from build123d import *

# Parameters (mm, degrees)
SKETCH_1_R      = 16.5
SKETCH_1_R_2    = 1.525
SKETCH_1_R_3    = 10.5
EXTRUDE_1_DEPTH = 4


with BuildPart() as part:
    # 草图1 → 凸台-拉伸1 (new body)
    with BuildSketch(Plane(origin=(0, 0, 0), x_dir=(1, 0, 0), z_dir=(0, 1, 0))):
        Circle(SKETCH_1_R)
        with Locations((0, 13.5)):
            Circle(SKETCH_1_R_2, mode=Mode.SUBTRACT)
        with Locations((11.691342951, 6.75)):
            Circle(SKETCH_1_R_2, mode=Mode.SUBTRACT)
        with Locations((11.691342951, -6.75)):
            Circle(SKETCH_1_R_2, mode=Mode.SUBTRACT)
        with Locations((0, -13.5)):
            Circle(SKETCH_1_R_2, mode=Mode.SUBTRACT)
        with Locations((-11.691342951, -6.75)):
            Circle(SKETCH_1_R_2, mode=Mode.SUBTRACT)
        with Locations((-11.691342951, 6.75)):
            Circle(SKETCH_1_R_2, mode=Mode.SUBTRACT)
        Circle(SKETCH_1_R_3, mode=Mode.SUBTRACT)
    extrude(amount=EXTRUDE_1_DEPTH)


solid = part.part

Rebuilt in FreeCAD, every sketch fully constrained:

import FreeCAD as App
import Part
import Sketcher
from FreeCAD import Vector
Q = App.Units.Quantity

doc = App.newDocument("Part")
params = doc.addObject("Spreadsheet::Sheet", "Params")
for row, (alias, value) in enumerate([
    ("sketch1_diameter", "33 mm"),
    ("sketch1_diameter2", "21 mm"),
    ("sketch1_diameter3", "3.05 mm"),
    ("pad1_length", "4 mm"),
], start=1):
    params.set(f"A{row}", alias)
    params.set(f"B{row}", "=" + value)
    params.setAlias(f"B{row}", alias)

body = doc.addObject("PartDesign::Body", "Body")

sketch1 = body.newObject("Sketcher::SketchObject", "Sketch")
sketch1.AttachmentSupport = (doc.getObject("XZ_Plane"), [""])
sketch1.MapMode = "FlatFace"
sketch1.addGeometry(Part.Circle(Vector(0, 0, 0), Vector(0, 0, 1), 16.5), False)
sketch1.addGeometry(Part.Circle(Vector(0, 13.5, 0), Vector(0, 0, 1), 1.5), False)
sketch1.addGeometry(Part.Circle(Vector(-11.7, 6.8, 0), Vector(0, 0, 1), 1.5), False)
sketch1.addGeometry(Part.Circle(Vector(11.7, 6.8, 0), Vector(0, 0, 1), 1.5), False)
sketch1.addGeometry(Part.Circle(Vector(-11.7, -6.8, 0), Vector(0, 0, 1), 1.5), False)
sketch1.addGeometry(Part.Circle(Vector(0, -13.5, 0), Vector(0, 0, 1), 1.5), False)
sketch1.addGeometry(Part.Circle(Vector(0, 0, 0), Vector(0, 0, 1), 10.5), False)
sketch1.addGeometry(Part.Circle(Vector(11.7, -6.8, 0), Vector(0, 0, 1), 1.5), False)
sketch1.addConstraint(Sketcher.Constraint("Coincident", 0, 3, -1, 1))
sketch1.addConstraint(Sketcher.Constraint("Coincident", 6, 3, -1, 1))
sketch1.addConstraint(Sketcher.Constraint("Equal", 1, 2))
sketch1.addConstraint(Sketcher.Constraint("Equal", 2, 3))
sketch1.addConstraint(Sketcher.Constraint("Equal", 3, 4))
sketch1.addConstraint(Sketcher.Constraint("Equal", 4, 5))
sketch1.addConstraint(Sketcher.Constraint("Equal", 5, 7))
sketch1.addConstraint(Sketcher.Constraint("Symmetric", 3, 3, 4, 3, -1, 1))
sketch1.addConstraint(Sketcher.Constraint("Symmetric", 1, 3, 5, 3, -1, 1))
sketch1.addConstraint(Sketcher.Constraint("Symmetric", 2, 3, 7, 3, -1, 1))
sketch1.addConstraint(Sketcher.Constraint("Symmetric", 2, 3, 3, 3, -2))
sketch1.addConstraint(Sketcher.Constraint("PointOnObject", 1, 3, -2))
sketch1.addConstraint(Sketcher.Constraint("Diameter", 0, Q("33 mm")))
sketch1.addConstraint(Sketcher.Constraint("Diameter", 6, Q("21 mm")))
sketch1.addConstraint(Sketcher.Constraint("Diameter", 1, Q("3.05 mm")))
sketch1.addConstraint(Sketcher.Constraint("DistanceY", 5, 3, 1, 3, Q("27 mm")))
sketch1.addConstraint(Sketcher.Constraint("DistanceY", 4, 3, 2, 3, Q("13.5 mm")))
sketch1.addConstraint(Sketcher.Constraint("DistanceX", 2, 3, -1, 1, Q("11.691343 mm")))
sketch1.setExpression("Constraints[12]", "Params.sketch1_diameter")
sketch1.setExpression("Constraints[13]", "Params.sketch1_diameter2")
sketch1.setExpression("Constraints[14]", "Params.sketch1_diameter3")
pad1 = body.newObject("PartDesign::Pad", "Pad")
pad1.Profile = sketch1
pad1.setExpression("Length", "Params.pad1_length")
pad1.Reversed = True

doc.recompute()
